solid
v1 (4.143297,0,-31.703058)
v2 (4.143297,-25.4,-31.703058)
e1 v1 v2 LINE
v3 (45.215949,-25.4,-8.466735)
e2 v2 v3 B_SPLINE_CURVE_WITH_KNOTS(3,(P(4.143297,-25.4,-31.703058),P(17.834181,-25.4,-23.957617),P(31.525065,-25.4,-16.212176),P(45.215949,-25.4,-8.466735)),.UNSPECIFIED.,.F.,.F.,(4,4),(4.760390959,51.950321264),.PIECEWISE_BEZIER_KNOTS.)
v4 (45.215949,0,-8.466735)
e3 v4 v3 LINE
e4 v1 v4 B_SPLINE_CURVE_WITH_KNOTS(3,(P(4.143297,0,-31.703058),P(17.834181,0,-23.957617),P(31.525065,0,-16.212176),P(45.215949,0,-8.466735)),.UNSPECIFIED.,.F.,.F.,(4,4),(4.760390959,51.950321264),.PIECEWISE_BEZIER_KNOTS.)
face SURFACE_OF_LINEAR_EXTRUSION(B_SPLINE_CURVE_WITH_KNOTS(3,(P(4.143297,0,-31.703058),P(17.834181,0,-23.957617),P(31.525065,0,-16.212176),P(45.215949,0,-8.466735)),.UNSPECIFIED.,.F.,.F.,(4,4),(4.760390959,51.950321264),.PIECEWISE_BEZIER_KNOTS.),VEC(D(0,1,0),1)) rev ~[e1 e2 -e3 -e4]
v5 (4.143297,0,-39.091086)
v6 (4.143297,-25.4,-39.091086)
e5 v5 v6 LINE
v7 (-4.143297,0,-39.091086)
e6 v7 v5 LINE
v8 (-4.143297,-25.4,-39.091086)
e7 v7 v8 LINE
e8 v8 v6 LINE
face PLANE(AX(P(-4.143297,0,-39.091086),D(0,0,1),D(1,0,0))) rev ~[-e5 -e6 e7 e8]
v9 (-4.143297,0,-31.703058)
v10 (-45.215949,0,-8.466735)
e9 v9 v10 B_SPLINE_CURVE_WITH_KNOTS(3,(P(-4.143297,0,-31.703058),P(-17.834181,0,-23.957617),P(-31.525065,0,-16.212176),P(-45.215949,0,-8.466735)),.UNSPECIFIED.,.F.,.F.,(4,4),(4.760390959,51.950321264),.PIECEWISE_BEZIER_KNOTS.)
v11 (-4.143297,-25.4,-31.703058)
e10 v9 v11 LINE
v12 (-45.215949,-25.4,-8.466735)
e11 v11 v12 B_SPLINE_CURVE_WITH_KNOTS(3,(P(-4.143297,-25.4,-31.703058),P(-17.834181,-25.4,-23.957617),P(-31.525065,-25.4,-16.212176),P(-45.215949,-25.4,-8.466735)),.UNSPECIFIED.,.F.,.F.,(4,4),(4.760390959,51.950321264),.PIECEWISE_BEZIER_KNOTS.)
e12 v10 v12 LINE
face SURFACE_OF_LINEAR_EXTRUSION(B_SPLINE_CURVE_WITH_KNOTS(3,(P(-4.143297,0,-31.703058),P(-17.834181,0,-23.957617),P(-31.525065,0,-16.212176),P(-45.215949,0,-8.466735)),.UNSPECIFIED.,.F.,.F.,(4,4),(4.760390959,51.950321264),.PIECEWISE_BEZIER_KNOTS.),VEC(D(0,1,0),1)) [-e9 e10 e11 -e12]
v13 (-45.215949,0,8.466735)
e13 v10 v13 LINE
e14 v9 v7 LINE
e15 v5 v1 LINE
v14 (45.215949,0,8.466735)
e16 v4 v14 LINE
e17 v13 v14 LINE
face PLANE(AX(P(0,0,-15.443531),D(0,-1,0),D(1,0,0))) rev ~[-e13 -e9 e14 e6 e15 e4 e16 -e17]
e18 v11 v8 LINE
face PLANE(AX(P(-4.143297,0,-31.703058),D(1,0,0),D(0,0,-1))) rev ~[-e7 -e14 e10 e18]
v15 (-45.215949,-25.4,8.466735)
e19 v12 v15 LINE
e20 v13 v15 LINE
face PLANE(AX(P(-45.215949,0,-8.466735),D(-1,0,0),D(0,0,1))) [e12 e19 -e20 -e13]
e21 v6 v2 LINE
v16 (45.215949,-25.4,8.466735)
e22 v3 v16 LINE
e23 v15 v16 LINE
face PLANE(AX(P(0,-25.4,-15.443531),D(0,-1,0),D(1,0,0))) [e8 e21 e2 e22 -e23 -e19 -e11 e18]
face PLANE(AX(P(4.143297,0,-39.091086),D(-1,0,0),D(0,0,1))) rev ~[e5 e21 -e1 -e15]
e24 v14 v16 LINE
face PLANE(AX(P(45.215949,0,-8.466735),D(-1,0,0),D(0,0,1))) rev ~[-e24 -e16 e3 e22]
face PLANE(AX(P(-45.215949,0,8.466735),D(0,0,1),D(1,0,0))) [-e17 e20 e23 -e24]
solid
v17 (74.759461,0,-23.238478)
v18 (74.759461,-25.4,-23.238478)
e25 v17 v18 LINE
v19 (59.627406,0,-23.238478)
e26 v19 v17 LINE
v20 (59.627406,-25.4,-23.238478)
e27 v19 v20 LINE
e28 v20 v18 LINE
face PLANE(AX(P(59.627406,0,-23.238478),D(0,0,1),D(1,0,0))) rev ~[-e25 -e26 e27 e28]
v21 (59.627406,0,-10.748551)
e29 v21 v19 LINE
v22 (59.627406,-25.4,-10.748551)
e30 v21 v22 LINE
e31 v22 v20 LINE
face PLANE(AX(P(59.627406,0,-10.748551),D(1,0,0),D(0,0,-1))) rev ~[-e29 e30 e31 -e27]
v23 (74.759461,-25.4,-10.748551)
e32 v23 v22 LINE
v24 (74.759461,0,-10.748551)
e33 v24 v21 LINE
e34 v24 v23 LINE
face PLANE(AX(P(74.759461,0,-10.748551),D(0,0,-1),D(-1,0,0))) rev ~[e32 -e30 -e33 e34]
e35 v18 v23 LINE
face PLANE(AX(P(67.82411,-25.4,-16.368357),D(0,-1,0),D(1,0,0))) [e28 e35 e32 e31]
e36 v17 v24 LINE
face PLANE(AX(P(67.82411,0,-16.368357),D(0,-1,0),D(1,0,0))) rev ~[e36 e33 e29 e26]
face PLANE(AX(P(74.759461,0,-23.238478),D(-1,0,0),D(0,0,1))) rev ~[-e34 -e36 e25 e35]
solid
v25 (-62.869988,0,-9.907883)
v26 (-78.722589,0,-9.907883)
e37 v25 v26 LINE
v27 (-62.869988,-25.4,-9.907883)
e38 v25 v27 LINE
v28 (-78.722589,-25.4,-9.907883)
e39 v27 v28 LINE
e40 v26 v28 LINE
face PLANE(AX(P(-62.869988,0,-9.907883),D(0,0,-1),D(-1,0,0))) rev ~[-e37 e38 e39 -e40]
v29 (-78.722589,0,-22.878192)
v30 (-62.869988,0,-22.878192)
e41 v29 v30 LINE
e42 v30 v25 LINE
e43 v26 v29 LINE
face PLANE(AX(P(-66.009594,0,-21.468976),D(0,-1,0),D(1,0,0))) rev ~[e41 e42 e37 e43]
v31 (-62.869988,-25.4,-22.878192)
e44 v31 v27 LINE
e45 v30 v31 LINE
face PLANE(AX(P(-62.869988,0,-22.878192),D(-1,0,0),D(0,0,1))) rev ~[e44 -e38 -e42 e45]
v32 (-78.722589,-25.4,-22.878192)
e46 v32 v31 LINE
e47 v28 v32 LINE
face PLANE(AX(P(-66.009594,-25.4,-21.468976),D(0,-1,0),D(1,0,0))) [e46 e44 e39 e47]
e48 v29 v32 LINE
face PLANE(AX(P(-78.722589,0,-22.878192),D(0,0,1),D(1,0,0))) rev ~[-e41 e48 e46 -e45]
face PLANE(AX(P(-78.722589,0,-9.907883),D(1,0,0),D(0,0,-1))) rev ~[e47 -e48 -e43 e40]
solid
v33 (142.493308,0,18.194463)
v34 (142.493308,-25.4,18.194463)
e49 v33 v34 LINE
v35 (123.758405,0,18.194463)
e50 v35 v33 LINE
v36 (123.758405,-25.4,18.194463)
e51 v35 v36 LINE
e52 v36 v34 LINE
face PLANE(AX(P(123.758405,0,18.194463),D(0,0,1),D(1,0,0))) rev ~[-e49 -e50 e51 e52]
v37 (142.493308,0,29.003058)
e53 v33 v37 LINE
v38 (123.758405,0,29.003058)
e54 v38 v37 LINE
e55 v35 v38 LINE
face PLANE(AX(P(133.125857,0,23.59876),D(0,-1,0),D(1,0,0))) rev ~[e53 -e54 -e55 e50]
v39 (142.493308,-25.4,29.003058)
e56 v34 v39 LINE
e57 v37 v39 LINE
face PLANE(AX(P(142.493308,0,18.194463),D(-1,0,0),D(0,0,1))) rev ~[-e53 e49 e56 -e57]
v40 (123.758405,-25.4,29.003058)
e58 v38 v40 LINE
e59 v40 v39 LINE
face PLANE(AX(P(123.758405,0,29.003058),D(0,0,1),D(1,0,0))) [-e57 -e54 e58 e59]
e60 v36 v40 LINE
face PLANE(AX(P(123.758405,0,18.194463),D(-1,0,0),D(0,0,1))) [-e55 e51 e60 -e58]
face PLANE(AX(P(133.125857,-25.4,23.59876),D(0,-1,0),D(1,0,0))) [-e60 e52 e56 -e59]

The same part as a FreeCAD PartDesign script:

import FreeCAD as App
import Part
import Sketcher

V = App.Vector
Q = App.Units.Quantity


def add_polygon(sketch, points):
    """Adds a closed chain of lines whose ends are joined by coincident constraints."""
    first, n = sketch.GeometryCount, len(points)
    for a, b in zip(points, points[1:] + points[:1]):
        sketch.addGeometry(Part.LineSegment(App.Vector(*a, 0), App.Vector(*b, 0)), False)
    for i in range(n):
        sketch.addConstraint(Sketcher.Constraint("Coincident", first + i, 2, first + (i + 1) % n, 1))

doc = App.newDocument("Part")
body = doc.addObject("PartDesign::Body", "Body")

# Sketch on XZ plane
sketch1 = doc.addObject("Sketcher::SketchObject", "Sketch")
body.addObject(sketch1)
sketch1.AttachmentSupport = (doc.XZ_Plane, [""])
sketch1.MapMode = "FlatFace"
sketch1.addGeometry([
    Part.BSplineCurve([V(4.143297, -31.703058, 0), V(17.834181, -23.957617, 0), V(31.525065, -16.212176, 0), V(45.215949, -8.466735, 0)], [4, 4], [4.760390959, 51.950321264], False, 3, [1, 1, 1, 1], False),  # 0
    Part.LineSegment(V(45.215949, -8.466735, 0), V(45.215949, 8.466735, 0)),  # 1
    Part.LineSegment(V(45.215949, 8.466735, 0), V(-45.215949, 8.466735, 0)),  # 2
    Part.LineSegment(V(-45.215949, 8.466735, 0), V(-45.215949, -8.466735, 0)),  # 3
    Part.BSplineCurve([V(-4.143297, -31.703058, 0), V(-17.834181, -23.957617, 0), V(-31.525065, -16.212176, 0), V(-45.215949, -8.466735, 0)], [4, 4], [4.760390959, 51.950321264], False, 3, [1, 1, 1, 1], False),  # 4
    Part.LineSegment(V(-4.143297, -31.703058, 0), V(-4.143297, -39.091086, 0)),  # 5
    Part.LineSegment(V(-4.143297, -39.091086, 0), V(4.143297, -39.091086, 0)),  # 6
    Part.LineSegment(V(4.143297, -39.091086, 0), V(4.143297, -31.703058, 0)),  # 7
], False)
sketch1.addConstraint([
    Sketcher.Constraint("Block", 0),
    Sketcher.Constraint("Block", 4),
    Sketcher.Constraint("Coincident", 0, 2, 1, 1),
    Sketcher.Constraint("Coincident", 1, 2, 2, 1),
    Sketcher.Constraint("Coincident", 2, 2, 3, 1),
    Sketcher.Constraint("Coincident", 3, 2, 4, 2),
    Sketcher.Constraint("Coincident", 4, 1, 5, 1),
    Sketcher.Constraint("Coincident", 5, 2, 6, 1),
    Sketcher.Constraint("Coincident", 6, 2, 7, 1),
    Sketcher.Constraint("Coincident", 7, 2, 0, 1),
    Sketcher.Constraint("Vertical", 1),
    Sketcher.Constraint("Horizontal", 2),
    Sketcher.Constraint("Vertical", 3),
    Sketcher.Constraint("Vertical", 5),
    Sketcher.Constraint("Horizontal", 6),
    Sketcher.Constraint("Vertical", 7),
    Sketcher.Constraint("DistanceY", 1, 1, 1, 2, Q("16.933469 mm")),
    Sketcher.Constraint("DistanceY", 5, 2, 5, 1, Q("7.388028 mm")),
])
pad1 = doc.addObject("PartDesign::Pad", "Pad")
body.addObject(pad1)
pad1.Profile = sketch1
pad1.Length = Q("1 in")
body2 = doc.addObject("PartDesign::Body", "Body001")

# Sketch on XZ plane
sketch2 = doc.addObject("Sketcher::SketchObject", "Sketch001")
body2.addObject(sketch2)
sketch2.AttachmentSupport = (doc.getObject("XZ_Plane001"), [""])
sketch2.MapMode = "FlatFace"
add_polygon(sketch2, [(-63, -23), (-63, -10), (-79, -10), (-79, -23)])  # lines 0-3
sketch2.addConstraint([
    Sketcher.Constraint("Vertical", 0),
    Sketcher.Constraint("Horizontal", 1),
    Sketcher.Constraint("Vertical", 2),
    Sketcher.Constraint("Horizontal", 3),
    Sketcher.Constraint("DistanceX", 1, 2, 1, 1, Q("15.8526 mm")),
    Sketcher.Constraint("DistanceY", 0, 1, 0, 2, Q("12.97031 mm")),
    Sketcher.Constraint("DistanceX", 0, 2, -1, 1, Q("62.869988 mm")),
    Sketcher.Constraint("DistanceY", 0, 2, -1, 1, Q("9.907883 mm")),
])
pad2 = doc.addObject("PartDesign::Pad", "Pad001")
body2.addObject(pad2)
pad2.Profile = sketch2
pad2.Length = Q("1 in")
body3 = doc.addObject("PartDesign::Body", "Body002")

# Sketch on XZ plane
sketch3 = doc.addObject("Sketcher::SketchObject", "Sketch002")
body3.addObject(sketch3)
sketch3.AttachmentSupport = (doc.getObject("XZ_Plane002"), [""])
sketch3.MapMode = "FlatFace"
add_polygon(sketch3, [(60, -11), (60, -23), (75, -23), (75, -11)])  # lines 0-3
sketch3.addConstraint([
    Sketcher.Constraint("Vertical", 0),
    Sketcher.Constraint("Horizontal", 1),
    Sketcher.Constraint("Vertical", 2),
    Sketcher.Constraint("Horizontal", 3),
    Sketcher.Constraint("DistanceX", 1, 1, 1, 2, Q("15.132055 mm")),
    Sketcher.Constraint("DistanceY", 0, 2, 0, 1, Q("12.489927 mm")),
    Sketcher.Constraint("DistanceY", 0, 2, -1, 1, Q("23.238478 mm")),
    Sketcher.Constraint("DistanceX", -1, 1, 1, 2, Q("74.759461 mm")),
])
pad3 = doc.addObject("PartDesign::Pad", "Pad002")
body3.addObject(pad3)
pad3.Profile = sketch3
pad3.Length = Q("1 in")
body4 = doc.addObject("PartDesign::Body", "Body003")

# Sketch on XZ plane
sketch4 = doc.addObject("Sketcher::SketchObject", "Sketch003")
body4.addObject(sketch4)
sketch4.AttachmentSupport = (doc.getObject("XZ_Plane003"), [""])
sketch4.MapMode = "FlatFace"
add_polygon(sketch4, [(124, 29), (124, 18), (142, 18), (142, 29)])  # lines 0-3
sketch4.addConstraint([
    Sketcher.Constraint("Vertical", 0),
    Sketcher.Constraint("Horizontal", 1),
    Sketcher.Constraint("Vertical", 2),
    Sketcher.Constraint("Horizontal", 3),
    Sketcher.Constraint("DistanceX", 1, 1, 1, 2, Q("18.734902 mm")),
    Sketcher.Constraint("DistanceY", 0, 2, 0, 1, Q("10.808595 mm")),
    Sketcher.Constraint("DistanceX", -1, 1, 0, 2, Q("123.758405 mm")),
    Sketcher.Constraint("DistanceY", -1, 1, 0, 2, Q("18.194463 mm")),
])
pad4 = doc.addObject("PartDesign::Pad", "Pad003")
body4.addObject(pad4)
pad4.Profile = sketch4
pad4.Length = Q("1 in")

doc.recompute()
